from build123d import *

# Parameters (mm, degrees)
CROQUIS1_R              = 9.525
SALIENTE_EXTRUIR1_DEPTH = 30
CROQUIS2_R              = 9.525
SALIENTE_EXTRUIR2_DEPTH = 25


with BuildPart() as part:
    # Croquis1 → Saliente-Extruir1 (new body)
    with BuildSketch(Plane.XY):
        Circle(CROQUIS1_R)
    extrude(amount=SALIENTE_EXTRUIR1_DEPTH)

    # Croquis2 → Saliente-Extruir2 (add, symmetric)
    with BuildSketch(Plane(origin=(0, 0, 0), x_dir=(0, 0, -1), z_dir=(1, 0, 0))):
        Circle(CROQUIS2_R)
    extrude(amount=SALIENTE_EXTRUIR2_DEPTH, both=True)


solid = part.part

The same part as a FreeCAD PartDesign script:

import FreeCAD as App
import Part
import Sketcher

doc = App.newDocument("Part")
body = doc.addObject("PartDesign::Body", "Body")

# Sketch on XY plane
sketch1 = body.newObject("Sketcher::SketchObject", "Sketch")
sketch1.AttachmentSupport = (doc.getObject("XY_Plane"), [""])
sketch1.MapMode = "FlatFace"
sketch1.addGeometry(Part.Circle(App.Vector(0, 0, 0), App.Vector(0, 0, 1), 10), False)
sketch1.addConstraint([
    Sketcher.Constraint("Coincident", 0, 3, -1, 1),
    Sketcher.Constraint("Diameter", 0, 19.05),
])
pad1 = body.newObject("PartDesign::Pad", "Pad")
pad1.Profile = sketch1
pad1.Length = 30

# Sketch on YZ plane
sketch2 = body.newObject("Sketcher::SketchObject", "Sketch001")
sketch2.AttachmentSupport = (doc.getObject("YZ_Plane"), [""])
sketch2.MapMode = "FlatFace"
sketch2.addGeometry(Part.Circle(App.Vector(0, 0, 0), App.Vector(0, 0, 1), 10), False)
sketch2.addConstraint([
    Sketcher.Constraint("Coincident", 0, 3, -1, 1),
    Sketcher.Constraint("Diameter", 0, 19.05),
])
pad2 = body.newObject("PartDesign::Pad", "Pad001")
pad2.Profile = sketch2
pad2.Length = 50
pad2.Midplane = True

doc.recompute()
